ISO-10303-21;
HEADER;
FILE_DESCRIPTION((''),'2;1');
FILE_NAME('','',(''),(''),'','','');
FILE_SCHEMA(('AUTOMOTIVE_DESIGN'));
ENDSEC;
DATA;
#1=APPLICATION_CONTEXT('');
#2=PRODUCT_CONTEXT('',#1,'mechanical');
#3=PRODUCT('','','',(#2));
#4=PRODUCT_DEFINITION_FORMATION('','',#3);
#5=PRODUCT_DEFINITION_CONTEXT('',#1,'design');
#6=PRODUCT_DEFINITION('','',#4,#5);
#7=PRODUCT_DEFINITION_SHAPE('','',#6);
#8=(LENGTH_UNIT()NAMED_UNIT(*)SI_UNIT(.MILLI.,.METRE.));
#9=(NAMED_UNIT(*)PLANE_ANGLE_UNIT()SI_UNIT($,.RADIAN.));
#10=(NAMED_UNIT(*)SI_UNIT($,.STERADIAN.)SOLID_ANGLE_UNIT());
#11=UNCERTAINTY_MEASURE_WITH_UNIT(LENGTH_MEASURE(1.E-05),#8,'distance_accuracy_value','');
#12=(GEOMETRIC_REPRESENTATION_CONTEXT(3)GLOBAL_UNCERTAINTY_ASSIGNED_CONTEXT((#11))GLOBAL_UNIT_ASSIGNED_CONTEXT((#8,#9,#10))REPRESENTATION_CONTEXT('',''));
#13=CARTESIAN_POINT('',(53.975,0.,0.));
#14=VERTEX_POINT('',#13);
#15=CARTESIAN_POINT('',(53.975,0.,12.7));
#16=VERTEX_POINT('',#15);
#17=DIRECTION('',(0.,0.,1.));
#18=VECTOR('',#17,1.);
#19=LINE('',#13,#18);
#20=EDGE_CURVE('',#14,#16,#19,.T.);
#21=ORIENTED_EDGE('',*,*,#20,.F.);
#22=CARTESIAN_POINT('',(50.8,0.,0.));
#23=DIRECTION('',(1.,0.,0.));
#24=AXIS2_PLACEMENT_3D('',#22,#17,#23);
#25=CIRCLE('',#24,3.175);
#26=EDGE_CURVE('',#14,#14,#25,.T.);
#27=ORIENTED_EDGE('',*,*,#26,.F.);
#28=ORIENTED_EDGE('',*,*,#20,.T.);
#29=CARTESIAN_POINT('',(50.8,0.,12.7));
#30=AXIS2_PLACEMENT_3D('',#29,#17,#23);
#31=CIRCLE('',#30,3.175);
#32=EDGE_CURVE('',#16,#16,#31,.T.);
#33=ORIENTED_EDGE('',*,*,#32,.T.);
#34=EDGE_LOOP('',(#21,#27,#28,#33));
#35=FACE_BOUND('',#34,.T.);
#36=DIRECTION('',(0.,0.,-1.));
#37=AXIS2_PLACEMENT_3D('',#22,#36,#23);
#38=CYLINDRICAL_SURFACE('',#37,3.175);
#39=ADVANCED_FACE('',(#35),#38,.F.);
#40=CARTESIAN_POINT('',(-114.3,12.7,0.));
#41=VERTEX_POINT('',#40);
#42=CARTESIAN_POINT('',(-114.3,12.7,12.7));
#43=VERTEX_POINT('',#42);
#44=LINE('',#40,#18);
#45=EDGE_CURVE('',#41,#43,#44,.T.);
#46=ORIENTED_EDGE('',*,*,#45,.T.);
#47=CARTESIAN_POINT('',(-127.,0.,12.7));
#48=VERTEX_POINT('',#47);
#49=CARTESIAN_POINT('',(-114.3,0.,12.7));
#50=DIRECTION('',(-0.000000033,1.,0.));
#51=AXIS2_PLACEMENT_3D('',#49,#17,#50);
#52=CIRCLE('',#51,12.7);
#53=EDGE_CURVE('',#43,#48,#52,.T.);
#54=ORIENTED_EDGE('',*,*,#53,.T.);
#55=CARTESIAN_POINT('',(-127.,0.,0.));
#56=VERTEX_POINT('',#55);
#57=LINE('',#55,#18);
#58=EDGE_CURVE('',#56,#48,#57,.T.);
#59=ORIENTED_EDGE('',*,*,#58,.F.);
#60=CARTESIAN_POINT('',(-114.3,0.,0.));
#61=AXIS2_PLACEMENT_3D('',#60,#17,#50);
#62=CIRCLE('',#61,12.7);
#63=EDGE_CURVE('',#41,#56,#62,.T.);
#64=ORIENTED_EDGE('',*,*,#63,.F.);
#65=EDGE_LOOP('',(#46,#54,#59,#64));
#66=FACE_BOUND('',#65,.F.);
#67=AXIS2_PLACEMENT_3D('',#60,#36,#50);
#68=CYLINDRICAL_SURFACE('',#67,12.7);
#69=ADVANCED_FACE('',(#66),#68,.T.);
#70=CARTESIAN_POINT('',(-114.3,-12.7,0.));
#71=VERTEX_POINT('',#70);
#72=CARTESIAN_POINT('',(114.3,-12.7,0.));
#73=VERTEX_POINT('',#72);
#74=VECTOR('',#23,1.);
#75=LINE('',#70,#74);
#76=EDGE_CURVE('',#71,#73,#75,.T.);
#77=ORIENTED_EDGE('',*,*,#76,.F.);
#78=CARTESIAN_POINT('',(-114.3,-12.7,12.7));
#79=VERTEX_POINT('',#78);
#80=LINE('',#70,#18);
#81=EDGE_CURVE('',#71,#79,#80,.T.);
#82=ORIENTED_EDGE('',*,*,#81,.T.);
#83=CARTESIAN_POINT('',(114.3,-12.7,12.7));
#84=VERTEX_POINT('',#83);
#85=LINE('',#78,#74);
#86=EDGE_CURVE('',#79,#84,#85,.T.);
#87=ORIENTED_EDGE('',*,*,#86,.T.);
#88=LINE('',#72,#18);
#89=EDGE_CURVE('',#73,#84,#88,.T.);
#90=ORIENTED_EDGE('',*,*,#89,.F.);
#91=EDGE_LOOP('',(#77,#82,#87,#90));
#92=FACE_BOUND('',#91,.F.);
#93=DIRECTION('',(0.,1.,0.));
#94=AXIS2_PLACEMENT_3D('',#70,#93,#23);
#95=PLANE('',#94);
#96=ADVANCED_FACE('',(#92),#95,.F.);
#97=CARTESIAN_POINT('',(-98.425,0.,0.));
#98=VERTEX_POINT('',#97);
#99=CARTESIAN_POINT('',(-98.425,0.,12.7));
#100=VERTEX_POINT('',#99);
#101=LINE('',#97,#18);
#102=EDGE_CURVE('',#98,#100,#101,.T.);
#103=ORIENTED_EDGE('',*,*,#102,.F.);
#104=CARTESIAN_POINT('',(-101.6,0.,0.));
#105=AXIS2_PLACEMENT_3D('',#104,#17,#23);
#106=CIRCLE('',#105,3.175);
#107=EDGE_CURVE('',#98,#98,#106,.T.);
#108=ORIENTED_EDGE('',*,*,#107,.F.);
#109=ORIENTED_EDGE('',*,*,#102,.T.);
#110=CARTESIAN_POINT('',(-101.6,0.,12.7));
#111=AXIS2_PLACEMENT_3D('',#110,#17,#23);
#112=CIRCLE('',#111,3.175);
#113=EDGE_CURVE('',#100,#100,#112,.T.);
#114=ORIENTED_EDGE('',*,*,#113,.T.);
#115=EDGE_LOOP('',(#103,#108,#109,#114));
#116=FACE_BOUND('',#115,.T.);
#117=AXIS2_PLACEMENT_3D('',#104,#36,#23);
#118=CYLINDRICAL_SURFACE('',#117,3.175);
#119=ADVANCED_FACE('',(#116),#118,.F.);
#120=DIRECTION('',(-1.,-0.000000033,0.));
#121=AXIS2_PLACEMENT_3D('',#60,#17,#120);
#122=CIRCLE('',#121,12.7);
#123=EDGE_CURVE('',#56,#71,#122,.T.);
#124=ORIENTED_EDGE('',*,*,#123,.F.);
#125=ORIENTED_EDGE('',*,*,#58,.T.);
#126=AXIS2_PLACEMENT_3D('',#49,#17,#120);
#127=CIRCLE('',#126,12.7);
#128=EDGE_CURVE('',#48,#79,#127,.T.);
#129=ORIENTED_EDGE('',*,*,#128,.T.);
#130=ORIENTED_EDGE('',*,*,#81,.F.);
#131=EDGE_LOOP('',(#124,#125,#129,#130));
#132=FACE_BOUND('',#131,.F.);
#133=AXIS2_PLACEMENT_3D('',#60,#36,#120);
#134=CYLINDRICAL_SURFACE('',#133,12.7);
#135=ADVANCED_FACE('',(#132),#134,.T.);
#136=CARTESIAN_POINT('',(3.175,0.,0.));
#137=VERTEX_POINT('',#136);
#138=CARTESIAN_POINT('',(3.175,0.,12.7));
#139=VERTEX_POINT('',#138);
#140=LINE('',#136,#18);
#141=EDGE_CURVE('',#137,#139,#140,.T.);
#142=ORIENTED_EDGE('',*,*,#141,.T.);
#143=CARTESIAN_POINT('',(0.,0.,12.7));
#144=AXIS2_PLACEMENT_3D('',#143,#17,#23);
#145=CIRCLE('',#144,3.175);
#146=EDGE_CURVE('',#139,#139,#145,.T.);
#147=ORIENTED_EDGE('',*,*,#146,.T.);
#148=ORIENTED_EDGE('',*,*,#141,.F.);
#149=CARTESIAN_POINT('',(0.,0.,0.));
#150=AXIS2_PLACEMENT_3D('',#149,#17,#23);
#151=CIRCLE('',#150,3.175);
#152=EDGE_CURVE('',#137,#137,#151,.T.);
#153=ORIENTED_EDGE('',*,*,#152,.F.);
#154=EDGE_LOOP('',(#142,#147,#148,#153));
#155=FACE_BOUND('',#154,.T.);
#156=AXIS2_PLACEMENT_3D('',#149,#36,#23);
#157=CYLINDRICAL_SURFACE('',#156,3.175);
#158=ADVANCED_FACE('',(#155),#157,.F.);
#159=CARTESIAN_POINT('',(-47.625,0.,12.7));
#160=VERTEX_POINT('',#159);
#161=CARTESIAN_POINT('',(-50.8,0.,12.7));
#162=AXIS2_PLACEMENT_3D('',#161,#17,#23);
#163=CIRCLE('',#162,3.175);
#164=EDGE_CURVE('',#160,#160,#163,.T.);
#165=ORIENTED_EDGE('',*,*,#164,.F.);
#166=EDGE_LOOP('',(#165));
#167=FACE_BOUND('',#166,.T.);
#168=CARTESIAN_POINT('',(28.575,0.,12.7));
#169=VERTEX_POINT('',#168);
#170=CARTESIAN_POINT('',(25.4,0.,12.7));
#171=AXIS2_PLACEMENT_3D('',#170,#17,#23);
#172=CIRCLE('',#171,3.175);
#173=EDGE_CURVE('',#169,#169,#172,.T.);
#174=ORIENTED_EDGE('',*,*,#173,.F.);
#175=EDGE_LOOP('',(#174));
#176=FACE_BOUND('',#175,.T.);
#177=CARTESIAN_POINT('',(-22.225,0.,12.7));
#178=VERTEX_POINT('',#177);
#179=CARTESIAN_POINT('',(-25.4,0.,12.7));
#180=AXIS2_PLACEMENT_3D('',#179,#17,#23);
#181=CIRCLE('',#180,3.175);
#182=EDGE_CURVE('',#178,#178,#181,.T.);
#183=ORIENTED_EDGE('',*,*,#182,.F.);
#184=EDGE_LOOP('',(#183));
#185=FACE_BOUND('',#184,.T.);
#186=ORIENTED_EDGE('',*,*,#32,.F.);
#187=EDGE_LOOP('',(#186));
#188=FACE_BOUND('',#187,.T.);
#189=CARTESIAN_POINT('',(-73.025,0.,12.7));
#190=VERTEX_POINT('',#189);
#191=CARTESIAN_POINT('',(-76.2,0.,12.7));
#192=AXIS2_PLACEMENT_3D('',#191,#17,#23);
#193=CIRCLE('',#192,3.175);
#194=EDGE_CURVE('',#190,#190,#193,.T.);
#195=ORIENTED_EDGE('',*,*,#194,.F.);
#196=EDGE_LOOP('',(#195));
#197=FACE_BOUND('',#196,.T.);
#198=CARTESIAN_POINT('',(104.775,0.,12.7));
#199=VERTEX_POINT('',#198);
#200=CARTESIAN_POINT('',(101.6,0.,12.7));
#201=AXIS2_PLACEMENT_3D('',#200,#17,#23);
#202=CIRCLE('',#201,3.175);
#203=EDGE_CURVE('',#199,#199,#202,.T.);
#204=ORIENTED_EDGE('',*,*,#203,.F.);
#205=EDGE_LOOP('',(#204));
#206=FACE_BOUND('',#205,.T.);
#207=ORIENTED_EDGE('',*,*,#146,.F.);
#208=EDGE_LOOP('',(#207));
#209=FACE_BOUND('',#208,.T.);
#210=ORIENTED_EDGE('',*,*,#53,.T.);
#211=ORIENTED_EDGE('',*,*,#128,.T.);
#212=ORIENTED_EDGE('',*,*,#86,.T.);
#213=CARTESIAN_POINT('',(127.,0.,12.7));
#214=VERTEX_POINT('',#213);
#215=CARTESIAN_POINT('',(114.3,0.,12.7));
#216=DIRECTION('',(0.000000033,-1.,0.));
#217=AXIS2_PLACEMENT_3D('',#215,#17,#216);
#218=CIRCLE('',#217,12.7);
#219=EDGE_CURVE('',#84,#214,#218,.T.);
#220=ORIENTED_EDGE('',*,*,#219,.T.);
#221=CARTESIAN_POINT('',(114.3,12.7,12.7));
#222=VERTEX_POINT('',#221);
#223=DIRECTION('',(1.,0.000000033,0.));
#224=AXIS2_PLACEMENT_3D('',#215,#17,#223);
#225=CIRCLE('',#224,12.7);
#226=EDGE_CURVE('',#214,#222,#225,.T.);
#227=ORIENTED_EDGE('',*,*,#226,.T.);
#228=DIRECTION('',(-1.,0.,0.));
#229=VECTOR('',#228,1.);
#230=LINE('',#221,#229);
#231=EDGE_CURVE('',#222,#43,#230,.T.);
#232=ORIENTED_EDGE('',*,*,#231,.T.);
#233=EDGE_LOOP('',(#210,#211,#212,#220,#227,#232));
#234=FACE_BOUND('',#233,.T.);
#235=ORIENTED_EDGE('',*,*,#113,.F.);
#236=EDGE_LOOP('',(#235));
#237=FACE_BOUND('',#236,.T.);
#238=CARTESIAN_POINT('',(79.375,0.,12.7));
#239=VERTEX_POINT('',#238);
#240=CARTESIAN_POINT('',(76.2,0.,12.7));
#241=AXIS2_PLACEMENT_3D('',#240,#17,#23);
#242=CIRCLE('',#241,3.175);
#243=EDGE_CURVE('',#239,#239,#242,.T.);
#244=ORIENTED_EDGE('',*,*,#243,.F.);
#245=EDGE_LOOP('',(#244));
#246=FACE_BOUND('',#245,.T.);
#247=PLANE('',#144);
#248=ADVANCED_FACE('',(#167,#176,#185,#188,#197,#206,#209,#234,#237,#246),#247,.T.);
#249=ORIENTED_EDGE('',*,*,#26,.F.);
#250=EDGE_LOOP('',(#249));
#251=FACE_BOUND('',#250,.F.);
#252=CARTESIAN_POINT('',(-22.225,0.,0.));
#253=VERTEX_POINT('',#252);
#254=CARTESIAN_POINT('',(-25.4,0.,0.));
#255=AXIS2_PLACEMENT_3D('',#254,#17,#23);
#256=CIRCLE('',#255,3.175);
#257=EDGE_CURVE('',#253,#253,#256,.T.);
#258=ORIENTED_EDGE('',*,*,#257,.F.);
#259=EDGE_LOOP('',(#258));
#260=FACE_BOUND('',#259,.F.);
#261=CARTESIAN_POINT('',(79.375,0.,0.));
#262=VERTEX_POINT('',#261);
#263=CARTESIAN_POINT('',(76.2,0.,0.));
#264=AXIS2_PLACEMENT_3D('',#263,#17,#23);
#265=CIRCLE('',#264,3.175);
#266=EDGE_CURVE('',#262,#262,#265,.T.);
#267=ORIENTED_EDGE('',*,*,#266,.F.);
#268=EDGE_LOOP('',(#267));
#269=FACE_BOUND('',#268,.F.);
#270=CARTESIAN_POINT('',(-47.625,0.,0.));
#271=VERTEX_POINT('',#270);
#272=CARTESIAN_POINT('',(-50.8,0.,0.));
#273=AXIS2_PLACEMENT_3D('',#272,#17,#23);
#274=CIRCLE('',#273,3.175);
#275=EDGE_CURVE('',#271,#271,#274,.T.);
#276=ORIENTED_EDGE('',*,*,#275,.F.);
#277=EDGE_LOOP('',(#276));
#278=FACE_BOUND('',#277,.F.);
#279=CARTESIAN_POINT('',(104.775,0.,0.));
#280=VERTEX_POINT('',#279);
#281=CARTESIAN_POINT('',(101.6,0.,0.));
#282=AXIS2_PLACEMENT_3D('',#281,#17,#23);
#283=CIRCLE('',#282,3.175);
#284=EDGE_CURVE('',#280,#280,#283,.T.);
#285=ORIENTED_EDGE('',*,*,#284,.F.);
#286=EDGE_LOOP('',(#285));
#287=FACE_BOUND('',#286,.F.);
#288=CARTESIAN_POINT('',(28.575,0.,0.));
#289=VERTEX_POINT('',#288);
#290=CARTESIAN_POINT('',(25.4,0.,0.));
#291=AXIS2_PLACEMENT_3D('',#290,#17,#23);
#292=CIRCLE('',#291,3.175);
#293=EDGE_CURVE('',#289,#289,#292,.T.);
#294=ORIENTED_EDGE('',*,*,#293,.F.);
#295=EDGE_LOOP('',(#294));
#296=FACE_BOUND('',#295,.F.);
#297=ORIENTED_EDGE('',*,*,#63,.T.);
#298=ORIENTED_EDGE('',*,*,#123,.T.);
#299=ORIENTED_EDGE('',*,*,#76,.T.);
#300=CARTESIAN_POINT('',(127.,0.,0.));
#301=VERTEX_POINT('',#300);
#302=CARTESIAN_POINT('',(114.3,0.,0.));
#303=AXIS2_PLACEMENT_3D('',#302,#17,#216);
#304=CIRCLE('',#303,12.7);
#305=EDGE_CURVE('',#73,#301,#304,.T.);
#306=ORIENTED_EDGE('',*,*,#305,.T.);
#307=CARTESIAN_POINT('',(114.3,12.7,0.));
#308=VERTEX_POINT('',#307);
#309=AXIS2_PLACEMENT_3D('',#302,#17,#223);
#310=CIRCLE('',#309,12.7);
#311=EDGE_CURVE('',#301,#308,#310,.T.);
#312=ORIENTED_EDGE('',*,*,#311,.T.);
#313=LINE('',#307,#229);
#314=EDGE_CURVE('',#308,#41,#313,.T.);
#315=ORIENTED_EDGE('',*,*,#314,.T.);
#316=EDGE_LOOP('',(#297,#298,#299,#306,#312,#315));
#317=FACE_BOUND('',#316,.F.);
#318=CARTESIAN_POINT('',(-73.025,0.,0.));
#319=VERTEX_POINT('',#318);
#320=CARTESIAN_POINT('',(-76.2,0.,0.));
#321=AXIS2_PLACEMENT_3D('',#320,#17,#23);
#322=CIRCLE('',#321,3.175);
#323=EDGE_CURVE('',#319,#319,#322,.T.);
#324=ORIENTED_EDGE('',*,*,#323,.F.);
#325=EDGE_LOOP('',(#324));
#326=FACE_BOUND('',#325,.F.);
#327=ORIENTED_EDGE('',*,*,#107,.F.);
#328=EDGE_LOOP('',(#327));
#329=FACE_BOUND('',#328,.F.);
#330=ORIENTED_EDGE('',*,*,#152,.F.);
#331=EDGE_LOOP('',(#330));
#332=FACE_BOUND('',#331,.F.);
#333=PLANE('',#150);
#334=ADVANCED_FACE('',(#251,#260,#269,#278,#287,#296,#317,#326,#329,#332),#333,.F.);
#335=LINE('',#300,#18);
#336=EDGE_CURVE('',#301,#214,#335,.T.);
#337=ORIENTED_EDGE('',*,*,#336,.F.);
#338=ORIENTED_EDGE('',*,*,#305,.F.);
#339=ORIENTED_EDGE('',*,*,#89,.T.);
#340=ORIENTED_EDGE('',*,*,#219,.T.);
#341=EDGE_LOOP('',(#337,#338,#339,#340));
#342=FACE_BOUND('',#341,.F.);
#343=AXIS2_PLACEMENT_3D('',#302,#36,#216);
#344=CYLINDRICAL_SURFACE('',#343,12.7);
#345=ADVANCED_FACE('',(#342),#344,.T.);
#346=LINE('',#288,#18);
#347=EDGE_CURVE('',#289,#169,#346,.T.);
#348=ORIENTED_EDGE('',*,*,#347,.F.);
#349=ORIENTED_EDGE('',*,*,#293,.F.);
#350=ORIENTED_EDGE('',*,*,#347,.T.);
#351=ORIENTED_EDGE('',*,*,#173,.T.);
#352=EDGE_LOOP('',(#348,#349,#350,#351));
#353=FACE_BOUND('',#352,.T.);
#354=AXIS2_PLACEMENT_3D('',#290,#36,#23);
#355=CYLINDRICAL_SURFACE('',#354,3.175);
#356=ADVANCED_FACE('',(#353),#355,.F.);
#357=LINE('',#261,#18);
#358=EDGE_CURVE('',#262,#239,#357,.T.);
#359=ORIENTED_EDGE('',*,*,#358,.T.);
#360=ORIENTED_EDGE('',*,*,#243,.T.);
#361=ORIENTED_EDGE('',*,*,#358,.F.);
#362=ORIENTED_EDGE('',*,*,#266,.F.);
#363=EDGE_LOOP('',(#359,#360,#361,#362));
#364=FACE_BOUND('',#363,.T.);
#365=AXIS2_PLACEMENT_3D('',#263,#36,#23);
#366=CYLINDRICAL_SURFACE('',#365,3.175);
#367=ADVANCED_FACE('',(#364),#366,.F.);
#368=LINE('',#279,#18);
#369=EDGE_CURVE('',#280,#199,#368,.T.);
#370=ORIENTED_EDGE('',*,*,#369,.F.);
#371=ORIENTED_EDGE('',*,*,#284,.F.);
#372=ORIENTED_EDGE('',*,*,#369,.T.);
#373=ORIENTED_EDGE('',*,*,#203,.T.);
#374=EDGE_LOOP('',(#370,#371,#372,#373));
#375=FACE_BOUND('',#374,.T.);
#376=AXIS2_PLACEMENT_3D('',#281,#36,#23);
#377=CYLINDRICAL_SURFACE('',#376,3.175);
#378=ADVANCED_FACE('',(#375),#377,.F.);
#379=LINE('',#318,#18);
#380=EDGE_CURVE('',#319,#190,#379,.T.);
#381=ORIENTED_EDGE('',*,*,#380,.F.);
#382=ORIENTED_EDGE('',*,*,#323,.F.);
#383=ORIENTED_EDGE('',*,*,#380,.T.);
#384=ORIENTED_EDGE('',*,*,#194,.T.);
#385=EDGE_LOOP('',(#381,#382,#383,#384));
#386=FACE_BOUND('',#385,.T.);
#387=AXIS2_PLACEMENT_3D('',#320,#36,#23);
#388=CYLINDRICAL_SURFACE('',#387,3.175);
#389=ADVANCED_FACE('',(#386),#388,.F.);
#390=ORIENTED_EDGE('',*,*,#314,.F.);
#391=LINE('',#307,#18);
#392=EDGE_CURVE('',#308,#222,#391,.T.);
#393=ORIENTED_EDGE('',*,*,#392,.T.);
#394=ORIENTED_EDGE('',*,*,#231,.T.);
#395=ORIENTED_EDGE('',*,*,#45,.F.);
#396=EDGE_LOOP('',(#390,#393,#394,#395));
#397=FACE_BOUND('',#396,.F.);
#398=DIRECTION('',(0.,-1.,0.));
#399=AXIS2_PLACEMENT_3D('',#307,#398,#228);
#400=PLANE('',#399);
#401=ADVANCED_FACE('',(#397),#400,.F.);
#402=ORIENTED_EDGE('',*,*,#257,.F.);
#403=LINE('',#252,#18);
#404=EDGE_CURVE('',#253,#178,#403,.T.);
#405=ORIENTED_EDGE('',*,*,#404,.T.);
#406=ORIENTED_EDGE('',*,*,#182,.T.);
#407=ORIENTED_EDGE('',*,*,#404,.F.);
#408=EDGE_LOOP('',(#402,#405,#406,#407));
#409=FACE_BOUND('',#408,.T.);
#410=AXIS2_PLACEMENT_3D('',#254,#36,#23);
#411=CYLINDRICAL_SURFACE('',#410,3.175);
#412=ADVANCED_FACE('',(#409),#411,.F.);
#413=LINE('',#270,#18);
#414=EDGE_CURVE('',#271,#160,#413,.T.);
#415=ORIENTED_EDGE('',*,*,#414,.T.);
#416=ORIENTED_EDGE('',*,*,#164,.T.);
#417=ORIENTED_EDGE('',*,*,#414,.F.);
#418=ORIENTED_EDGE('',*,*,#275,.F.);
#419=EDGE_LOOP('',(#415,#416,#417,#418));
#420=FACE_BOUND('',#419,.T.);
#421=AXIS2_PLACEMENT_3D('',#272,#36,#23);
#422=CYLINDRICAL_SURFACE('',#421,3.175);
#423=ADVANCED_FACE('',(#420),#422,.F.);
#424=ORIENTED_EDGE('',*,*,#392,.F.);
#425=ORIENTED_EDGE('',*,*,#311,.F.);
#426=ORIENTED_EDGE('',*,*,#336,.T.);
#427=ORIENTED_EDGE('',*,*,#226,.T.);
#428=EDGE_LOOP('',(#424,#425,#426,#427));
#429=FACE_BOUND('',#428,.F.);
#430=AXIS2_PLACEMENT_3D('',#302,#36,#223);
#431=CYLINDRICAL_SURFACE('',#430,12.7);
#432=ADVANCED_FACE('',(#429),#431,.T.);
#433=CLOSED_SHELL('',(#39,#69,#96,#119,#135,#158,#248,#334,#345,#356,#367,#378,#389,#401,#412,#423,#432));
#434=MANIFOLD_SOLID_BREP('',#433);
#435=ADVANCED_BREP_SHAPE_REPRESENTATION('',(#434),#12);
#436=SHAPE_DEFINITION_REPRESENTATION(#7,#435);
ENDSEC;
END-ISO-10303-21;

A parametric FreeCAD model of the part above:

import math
import FreeCAD as App
import Part
import Sketcher
from FreeCAD import Vector
Q = App.Units.Quantity

doc = App.newDocument("Part")
body = doc.addObject("PartDesign::Body", "Body")

# Sketch on XY plane
sketch1 = body.newObject("Sketcher::SketchObject", "Sketch")
sketch1.AttachmentSupport = (doc.getObject("XY_Plane"), [""])
sketch1.MapMode = "FlatFace"
sketch1.addGeometry([
    Part.LineSegment(Vector(-114.3, -12.7, 0), Vector(114.3, -12.7, 0)),  # 0
    Part.ArcOfCircle(Part.Circle(Vector(114.3, 0, 0), Vector(0, 0, 1), 12.7), math.radians(-90), math.radians(0)),  # 1
    Part.ArcOfCircle(Part.Circle(Vector(114.3, 0, 0), Vector(0, 0, 1), 12.7), math.radians(0), math.radians(90)),  # 2
    Part.LineSegment(Vector(114.3, 12.7, 0), Vector(-114.3, 12.7, 0)),  # 3
    Part.ArcOfCircle(Part.Circle(Vector(-114.3, 0, 0), Vector(0, 0, 1), 12.7), math.radians(90), math.radians(180)),  # 4
    Part.ArcOfCircle(Part.Circle(Vector(-114.3, 0, 0), Vector(0, 0, 1), 12.7), math.radians(-180), math.radians(-90)),  # 5
    Part.Circle(Vector(-101.6, 0, 0), Vector(0, 0, 1), 3.2),  # 6
    Part.Circle(Vector(-76.2, 0, 0), Vector(0, 0, 1), 3.2),  # 7
    Part.Circle(Vector(-50.8, 0, 0), Vector(0, 0, 1), 3.2),  # 8
    Part.Circle(Vector(-25.4, 0, 0), Vector(0, 0, 1), 3.2),  # 9
    Part.Circle(Vector(0, 0, 0), Vector(0, 0, 1), 3.2),  # 10
    Part.Circle(Vector(25.4, 0, 0), Vector(0, 0, 1), 3.2),  # 11
    Part.Circle(Vector(50.8, 0, 0), Vector(0, 0, 1), 3.2),  # 12
    Part.Circle(Vector(76.2, 0, 0), Vector(0, 0, 1), 3.2),  # 13
    Part.Circle(Vector(101.6, 0, 0), Vector(0, 0, 1), 3.2),  # 14
], False)
sketch1.addConstraint([
    Sketcher.Constraint("Tangent", 0, 2, 1, 1),
    Sketcher.Constraint("Tangent", 1, 2, 2, 1),
    Sketcher.Constraint("Tangent", 2, 2, 3, 1),
    Sketcher.Constraint("Tangent", 3, 2, 4, 1),
    Sketcher.Constraint("Tangent", 4, 2, 5, 1),
    Sketcher.Constraint("Tangent", 5, 2, 0, 1),
    Sketcher.Constraint("Horizontal", 0),
    Sketcher.Constraint("Horizontal", 3),
    Sketcher.Constraint("Coincident", 10, 3, -1, 1),
    Sketcher.Constraint("Equal", 1, 2),
    Sketcher.Constraint("Equal", 2, 4),
    Sketcher.Constraint("Equal", 6, 7),
    Sketcher.Constraint("Equal", 7, 8),
    Sketcher.Constraint("Equal", 8, 9),
    Sketcher.Constraint("Equal", 9, 10),
    Sketcher.Constraint("Equal", 10, 11),
    Sketcher.Constraint("Equal", 11, 12),
    Sketcher.Constraint("Equal", 12, 13),
    Sketcher.Constraint("Equal", 13, 14),
    Sketcher.Constraint("Symmetric", 1, 3, 4, 3, -1, 1),
    Sketcher.Constraint("Symmetric", 9, 3, 11, 3, -1, 1),
    Sketcher.Constraint("Symmetric", 8, 3, 12, 3, -1, 1),
    Sketcher.Constraint("Symmetric", 7, 3, 13, 3, -1, 1),
    Sketcher.Constraint("Symmetric", 6, 3, 14, 3, -1, 1),
    Sketcher.Constraint("PointOnObject", 6, 3, -1),
    Sketcher.Constraint("PointOnObject", 7, 3, -1),
    Sketcher.Constraint("PointOnObject", 8, 3, -1),
    Sketcher.Constraint("PointOnObject", 9, 3, -1),
    Sketcher.Constraint("PointOnObject", 1, 2, -1),
    Sketcher.Constraint("PointOnObject", 4, 2, -1),
    Sketcher.Constraint("Radius", 1, Q("0.5 in")),
    Sketcher.Constraint("Diameter", 6, Q("0.25 in")),
    Sketcher.Constraint("DistanceX", 0, 1, 0, 2, Q("9 in")),
    Sketcher.Constraint("DistanceX", 6, 3, -1, 1, Q("4 in")),
    Sketcher.Constraint("DistanceX", 7, 3, -1, 1, Q("3 in")),
    Sketcher.Constraint("DistanceX", 8, 3, -1, 1, Q("2 in")),
    Sketcher.Constraint("DistanceX", 9, 3, -1, 1, Q("1 in")),
])
pad1 = body.newObject("PartDesign::Pad", "Pad")
pad1.Profile = sketch1
pad1.Length = Q("0.5 in")

doc.recompute()
